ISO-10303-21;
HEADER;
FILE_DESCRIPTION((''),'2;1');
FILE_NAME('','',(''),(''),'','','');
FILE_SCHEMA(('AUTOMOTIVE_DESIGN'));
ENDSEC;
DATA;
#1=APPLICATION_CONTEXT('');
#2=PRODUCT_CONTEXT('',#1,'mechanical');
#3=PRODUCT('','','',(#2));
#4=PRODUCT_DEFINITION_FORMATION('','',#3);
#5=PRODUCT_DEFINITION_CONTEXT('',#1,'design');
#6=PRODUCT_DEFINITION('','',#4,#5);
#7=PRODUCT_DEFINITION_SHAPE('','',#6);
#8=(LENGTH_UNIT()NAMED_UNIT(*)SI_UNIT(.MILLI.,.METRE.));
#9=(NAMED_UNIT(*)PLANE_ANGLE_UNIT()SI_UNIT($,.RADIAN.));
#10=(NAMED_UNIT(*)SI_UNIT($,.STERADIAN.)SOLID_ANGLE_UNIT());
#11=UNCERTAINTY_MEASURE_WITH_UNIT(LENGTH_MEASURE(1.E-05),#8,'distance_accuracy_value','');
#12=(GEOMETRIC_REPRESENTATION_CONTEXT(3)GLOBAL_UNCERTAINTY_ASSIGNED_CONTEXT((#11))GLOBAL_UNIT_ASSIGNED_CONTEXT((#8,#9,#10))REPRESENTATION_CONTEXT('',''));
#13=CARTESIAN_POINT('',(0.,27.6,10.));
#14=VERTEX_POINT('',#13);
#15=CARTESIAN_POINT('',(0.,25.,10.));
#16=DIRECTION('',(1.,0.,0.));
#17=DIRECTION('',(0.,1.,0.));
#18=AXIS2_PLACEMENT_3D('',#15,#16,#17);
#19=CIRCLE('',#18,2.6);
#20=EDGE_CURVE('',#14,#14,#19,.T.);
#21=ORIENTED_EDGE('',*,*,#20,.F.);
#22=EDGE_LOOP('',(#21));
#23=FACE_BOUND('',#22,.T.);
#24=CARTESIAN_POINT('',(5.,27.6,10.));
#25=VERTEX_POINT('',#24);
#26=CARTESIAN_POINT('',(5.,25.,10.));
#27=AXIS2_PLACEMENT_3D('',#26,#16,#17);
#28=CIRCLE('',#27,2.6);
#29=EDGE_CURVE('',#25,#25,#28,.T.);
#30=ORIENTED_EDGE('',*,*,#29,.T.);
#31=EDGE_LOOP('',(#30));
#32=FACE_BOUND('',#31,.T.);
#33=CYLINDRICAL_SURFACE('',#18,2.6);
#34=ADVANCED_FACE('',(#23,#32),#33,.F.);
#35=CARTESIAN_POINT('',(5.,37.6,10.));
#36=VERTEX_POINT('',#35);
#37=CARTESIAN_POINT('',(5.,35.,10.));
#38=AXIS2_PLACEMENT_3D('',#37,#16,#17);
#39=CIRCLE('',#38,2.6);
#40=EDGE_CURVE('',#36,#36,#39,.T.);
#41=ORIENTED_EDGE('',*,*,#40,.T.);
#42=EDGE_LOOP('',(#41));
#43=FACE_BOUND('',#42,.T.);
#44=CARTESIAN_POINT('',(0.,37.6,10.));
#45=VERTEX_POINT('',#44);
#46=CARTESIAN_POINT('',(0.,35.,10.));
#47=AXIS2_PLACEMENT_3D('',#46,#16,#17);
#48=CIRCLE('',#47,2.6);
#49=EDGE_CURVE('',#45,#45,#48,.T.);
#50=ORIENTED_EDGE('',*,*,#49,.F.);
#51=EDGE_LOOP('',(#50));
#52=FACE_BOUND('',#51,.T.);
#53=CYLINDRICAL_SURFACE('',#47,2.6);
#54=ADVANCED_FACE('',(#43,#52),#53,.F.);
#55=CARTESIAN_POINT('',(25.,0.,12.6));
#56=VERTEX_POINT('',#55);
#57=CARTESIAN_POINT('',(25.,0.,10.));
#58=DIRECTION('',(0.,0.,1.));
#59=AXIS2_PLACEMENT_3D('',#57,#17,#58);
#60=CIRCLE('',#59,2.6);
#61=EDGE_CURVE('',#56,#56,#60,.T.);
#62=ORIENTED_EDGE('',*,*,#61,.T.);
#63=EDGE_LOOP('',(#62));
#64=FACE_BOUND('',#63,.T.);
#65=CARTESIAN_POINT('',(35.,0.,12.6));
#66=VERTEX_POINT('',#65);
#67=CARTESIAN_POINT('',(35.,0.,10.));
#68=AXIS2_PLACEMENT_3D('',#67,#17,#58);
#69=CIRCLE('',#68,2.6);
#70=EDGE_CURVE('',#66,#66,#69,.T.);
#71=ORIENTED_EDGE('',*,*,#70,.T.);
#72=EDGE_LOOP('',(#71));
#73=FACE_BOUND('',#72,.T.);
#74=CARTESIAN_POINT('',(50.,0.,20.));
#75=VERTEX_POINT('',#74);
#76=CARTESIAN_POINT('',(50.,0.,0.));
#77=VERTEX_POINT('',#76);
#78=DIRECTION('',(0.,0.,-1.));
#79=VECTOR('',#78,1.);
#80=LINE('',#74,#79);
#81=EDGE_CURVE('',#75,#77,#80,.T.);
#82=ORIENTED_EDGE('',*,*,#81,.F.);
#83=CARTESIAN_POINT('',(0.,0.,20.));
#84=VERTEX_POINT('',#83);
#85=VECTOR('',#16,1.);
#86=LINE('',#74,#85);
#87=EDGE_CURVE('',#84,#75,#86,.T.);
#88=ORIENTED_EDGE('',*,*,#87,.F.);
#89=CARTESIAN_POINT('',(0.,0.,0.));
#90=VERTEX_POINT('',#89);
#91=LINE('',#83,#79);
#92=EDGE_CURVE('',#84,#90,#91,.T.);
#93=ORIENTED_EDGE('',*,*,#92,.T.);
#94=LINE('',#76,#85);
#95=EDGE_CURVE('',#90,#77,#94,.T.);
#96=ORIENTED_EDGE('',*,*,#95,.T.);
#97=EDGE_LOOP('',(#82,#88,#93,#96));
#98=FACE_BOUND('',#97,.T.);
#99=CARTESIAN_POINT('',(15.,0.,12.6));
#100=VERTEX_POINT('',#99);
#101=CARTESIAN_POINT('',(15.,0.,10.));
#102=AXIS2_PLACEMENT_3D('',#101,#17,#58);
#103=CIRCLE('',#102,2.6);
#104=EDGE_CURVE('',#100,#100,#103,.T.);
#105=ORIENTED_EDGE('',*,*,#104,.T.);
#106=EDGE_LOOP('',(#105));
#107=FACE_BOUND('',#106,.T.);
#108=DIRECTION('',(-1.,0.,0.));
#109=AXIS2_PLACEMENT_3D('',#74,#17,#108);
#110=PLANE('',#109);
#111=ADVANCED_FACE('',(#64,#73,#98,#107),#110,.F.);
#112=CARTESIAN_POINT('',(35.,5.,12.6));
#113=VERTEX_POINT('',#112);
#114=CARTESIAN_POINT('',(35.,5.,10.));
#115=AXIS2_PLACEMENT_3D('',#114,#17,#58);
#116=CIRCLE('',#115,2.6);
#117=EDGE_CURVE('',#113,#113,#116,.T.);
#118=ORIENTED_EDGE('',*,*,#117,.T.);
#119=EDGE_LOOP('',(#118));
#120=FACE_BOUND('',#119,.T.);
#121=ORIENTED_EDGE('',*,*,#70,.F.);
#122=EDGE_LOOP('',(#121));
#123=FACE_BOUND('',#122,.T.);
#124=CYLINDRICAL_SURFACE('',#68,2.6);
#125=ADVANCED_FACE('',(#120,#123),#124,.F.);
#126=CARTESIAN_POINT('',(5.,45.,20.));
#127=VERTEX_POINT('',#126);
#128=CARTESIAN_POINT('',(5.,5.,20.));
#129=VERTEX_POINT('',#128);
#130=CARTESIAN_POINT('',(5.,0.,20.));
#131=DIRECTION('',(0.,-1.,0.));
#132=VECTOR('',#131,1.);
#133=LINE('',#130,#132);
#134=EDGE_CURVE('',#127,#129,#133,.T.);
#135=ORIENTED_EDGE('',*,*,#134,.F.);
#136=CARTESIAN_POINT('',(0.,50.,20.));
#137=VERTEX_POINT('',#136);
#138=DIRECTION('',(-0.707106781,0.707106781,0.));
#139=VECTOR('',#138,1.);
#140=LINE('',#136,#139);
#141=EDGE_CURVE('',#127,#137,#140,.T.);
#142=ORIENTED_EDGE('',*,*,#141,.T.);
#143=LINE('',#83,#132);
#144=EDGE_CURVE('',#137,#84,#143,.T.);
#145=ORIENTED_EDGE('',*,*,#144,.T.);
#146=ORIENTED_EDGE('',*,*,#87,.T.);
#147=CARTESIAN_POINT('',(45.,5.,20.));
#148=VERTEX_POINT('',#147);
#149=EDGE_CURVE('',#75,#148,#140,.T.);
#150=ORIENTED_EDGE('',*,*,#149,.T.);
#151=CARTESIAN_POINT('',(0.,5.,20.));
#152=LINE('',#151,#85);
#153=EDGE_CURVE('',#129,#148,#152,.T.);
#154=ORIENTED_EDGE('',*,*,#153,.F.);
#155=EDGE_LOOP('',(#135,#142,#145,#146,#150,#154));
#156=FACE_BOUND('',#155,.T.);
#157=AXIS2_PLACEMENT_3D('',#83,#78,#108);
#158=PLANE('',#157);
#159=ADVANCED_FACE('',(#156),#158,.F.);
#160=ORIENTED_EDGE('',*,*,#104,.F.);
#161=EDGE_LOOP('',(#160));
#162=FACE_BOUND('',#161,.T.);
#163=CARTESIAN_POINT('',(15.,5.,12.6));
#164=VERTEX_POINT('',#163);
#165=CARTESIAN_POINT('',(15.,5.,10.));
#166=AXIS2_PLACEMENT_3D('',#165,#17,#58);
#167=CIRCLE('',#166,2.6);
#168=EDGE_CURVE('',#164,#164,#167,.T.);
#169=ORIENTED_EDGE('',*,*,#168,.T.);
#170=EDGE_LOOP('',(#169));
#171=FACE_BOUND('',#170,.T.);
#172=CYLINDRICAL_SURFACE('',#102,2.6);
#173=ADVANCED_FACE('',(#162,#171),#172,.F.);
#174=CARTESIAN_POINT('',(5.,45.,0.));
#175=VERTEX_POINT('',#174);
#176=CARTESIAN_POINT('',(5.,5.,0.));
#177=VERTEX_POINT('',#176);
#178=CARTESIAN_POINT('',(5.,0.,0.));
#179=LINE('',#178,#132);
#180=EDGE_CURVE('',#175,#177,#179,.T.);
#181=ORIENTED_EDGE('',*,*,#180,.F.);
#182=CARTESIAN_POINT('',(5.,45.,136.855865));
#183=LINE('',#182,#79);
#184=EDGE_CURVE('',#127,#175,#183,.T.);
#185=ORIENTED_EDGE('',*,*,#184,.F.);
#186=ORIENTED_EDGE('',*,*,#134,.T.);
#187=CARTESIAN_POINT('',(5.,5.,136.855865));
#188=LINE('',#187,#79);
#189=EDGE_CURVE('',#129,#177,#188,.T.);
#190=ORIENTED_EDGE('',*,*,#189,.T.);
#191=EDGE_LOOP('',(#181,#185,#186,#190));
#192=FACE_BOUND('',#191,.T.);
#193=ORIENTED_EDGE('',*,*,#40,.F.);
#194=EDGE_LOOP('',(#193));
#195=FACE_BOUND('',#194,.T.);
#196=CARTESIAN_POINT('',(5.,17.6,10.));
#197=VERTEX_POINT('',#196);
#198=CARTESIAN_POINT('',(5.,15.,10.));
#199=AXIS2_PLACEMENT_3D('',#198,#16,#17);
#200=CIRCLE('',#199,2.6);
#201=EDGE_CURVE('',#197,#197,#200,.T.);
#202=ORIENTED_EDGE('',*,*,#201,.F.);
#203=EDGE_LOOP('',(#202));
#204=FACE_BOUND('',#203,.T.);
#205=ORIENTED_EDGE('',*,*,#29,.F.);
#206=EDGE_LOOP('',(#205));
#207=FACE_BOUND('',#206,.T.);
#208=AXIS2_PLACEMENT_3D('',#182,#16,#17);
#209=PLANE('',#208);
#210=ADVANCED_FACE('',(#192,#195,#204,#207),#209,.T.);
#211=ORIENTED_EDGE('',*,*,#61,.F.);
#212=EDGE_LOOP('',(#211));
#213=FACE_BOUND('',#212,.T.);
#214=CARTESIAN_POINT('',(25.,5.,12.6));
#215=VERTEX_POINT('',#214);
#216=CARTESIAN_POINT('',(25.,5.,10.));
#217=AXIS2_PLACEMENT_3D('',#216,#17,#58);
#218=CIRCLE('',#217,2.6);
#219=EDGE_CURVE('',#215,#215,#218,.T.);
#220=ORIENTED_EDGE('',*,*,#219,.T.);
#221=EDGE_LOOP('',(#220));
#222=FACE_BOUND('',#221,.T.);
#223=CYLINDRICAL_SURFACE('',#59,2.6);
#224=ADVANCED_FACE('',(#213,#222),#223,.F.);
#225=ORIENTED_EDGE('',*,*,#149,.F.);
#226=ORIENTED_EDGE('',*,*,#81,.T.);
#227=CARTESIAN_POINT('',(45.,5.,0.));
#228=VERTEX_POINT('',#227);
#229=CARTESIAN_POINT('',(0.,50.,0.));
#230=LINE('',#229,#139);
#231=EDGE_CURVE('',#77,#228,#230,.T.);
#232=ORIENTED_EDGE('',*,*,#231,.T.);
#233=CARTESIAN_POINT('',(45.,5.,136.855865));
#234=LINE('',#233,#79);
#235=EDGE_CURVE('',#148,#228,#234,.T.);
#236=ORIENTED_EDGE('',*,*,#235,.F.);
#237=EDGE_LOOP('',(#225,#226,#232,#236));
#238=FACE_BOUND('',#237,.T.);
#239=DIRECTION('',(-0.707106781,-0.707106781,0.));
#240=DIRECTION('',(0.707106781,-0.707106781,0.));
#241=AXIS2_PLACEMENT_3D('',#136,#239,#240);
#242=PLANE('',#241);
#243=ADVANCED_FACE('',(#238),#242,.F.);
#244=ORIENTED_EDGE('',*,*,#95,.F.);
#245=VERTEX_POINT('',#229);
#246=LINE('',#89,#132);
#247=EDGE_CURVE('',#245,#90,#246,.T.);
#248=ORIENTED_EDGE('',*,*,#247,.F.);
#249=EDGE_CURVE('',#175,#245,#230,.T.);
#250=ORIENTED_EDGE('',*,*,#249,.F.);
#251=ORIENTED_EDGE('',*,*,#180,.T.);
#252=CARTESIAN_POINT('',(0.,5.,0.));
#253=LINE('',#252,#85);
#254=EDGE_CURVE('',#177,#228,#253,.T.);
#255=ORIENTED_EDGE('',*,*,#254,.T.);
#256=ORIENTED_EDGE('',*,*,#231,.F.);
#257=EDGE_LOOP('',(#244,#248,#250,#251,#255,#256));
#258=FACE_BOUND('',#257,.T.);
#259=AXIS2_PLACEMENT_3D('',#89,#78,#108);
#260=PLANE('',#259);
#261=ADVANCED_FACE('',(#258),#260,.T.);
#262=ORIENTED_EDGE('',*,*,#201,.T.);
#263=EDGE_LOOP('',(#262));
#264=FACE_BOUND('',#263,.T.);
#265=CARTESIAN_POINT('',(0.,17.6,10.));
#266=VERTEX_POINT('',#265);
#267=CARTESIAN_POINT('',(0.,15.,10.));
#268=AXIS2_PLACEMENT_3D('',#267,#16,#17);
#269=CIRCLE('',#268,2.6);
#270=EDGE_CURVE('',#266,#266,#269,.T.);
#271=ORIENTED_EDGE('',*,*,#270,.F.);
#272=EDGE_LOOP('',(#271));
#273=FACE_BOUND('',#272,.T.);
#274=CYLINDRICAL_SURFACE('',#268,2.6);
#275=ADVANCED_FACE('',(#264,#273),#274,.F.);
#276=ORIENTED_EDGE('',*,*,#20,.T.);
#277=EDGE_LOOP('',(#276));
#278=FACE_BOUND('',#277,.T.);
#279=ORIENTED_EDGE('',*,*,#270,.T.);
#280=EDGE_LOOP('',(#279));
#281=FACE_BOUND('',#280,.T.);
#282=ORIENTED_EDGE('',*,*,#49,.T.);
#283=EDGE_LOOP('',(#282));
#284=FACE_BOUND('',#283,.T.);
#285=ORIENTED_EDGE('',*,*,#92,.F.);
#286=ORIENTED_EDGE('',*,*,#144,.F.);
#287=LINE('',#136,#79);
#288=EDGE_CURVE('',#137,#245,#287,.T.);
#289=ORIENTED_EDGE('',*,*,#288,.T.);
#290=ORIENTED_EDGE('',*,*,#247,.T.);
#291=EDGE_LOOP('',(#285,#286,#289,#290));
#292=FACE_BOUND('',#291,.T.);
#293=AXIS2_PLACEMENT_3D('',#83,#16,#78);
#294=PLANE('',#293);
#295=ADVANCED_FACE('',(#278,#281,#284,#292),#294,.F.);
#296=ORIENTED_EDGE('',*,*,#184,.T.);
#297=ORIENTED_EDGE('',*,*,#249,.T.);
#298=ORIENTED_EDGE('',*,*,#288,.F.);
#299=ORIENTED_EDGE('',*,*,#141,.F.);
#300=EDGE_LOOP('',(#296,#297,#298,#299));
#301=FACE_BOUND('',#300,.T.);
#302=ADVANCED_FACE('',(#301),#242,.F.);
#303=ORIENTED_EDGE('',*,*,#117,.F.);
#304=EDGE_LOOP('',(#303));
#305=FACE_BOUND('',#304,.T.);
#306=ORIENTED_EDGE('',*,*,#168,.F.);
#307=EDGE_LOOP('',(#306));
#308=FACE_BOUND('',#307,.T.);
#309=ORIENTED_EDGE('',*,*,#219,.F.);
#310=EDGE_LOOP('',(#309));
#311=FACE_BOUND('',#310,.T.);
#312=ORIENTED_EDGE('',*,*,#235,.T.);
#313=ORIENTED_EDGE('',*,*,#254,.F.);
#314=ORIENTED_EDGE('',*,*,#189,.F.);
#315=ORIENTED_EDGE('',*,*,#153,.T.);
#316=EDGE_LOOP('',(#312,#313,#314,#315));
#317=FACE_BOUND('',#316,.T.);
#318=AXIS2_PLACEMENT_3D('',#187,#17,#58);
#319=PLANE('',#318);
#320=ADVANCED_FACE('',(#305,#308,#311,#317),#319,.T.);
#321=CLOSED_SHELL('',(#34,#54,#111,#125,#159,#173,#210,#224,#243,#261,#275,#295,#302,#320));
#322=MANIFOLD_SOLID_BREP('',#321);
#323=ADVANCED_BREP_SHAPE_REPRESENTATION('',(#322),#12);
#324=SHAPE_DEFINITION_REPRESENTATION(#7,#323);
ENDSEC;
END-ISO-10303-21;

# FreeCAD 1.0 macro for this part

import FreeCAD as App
import Part
import Sketcher
from FreeCAD import Vector
Q = App.Units.Quantity


def add_polygon(sketch, points):
    """Adds a closed chain of lines whose ends are joined by coincident constraints."""
    first, n = sketch.GeometryCount, len(points)
    for a, b in zip(points, points[1:] + points[:1]):
        sketch.addGeometry(Part.LineSegment(App.Vector(*a, 0), App.Vector(*b, 0)), False)
    for i in range(n):
        sketch.addConstraint(Sketcher.Constraint("Coincident", first + i, 2, first + (i + 1) % n, 1))

doc = App.newDocument("Part")
params = doc.addObject("Spreadsheet::Sheet", "Params")
for row, (alias, value) in enumerate([
    ("sketch1_width", "50 mm"),
    ("pad1_length", "20 mm"),
    ("sketch3_diameter", "5.2 mm"),
    ("sketch4_diameter", "5.2 mm"),
], start=1):
    params.set(f"A{row}", alias)
    params.set(f"B{row}", "=" + value)
    params.setAlias(f"B{row}", alias)

body = doc.addObject("PartDesign::Body", "Body")

# Sketch on XY plane
sketch1 = body.newObject("Sketcher::SketchObject", "Sketch")
sketch1.AttachmentSupport = (doc.getObject("XY_Plane"), [""])
sketch1.MapMode = "FlatFace"
add_polygon(sketch1, [(0, 50), (0, 0), (50, 0)])  # lines 0-2
sketch1.addConstraint([
    Sketcher.Constraint("Vertical", 0),
    Sketcher.Constraint("Horizontal", 1),
    Sketcher.Constraint("Coincident", 0, 2, -1, 1),
    Sketcher.Constraint("Equal", 1, 0),
    Sketcher.Constraint("DistanceX", 1, 1, 1, 2, Q("50 mm")),
])
sketch1.setExpression("Constraints[7]", "Params.sketch1_width")
pad1 = body.newObject("PartDesign::Pad", "Pad")
pad1.Profile = sketch1
pad1.setExpression("Length", "Params.pad1_length")

# Sketch on XY plane
sketch2 = body.newObject("Sketcher::SketchObject", "Sketch001")
sketch2.AttachmentSupport = (doc.getObject("XY_Plane"), [""])
sketch2.MapMode = "FlatFace"
sketch2.AttachmentOffset = App.Placement(Vector(0, 0, 20), App.Rotation())
add_polygon(sketch2, [(5, 182), (5, 5), (182, 5), (376, 199), (199, 376)])  # lines 0-4
sketch2.addConstraint([
    Sketcher.Constraint("Vertical", 0),
    Sketcher.Constraint("Horizontal", 1),
    Sketcher.Constraint("Perpendicular", 2, 3),
    Sketcher.Constraint("Perpendicular", 3, 4),
    Sketcher.Constraint("Equal", 1, 0),
    Sketcher.Constraint("Equal", 2, 4),
    Sketcher.Constraint("DistanceX", -1, 1, 0, 2, Q("5 mm")),
    Sketcher.Constraint("DistanceY", -1, 1, 0, 2, Q("5 mm")),
    Sketcher.Constraint("DistanceX", 1, 1, 1, 2, Q("177.279221 mm")),
    Sketcher.Constraint("Distance", 2, Q("274.558441 mm")),
])
pocket1 = body.newObject("PartDesign::Pocket", "Pocket")
pocket1.Profile = sketch2
pocket1.Type = "ThroughAll"
pocket1.Midplane = True

# Sketch on YZ plane
sketch3 = body.newObject("Sketcher::SketchObject", "Sketch002")
sketch3.AttachmentSupport = (doc.getObject("YZ_Plane"), [""])
sketch3.MapMode = "FlatFace"
sketch3.AttachmentOffset = App.Placement(Vector(0, 0, 5), App.Rotation())
sketch3.addGeometry([
    Part.Circle(Vector(35, 10, 0), Vector(0, 0, 1), 2.6),
    Part.Circle(Vector(25, 10, 0), Vector(0, 0, 1), 2.6),
    Part.Circle(Vector(15, 10, 0), Vector(0, 0, 1), 2.6),
], False)
sketch3.addConstraint([
    Sketcher.Constraint("Equal", 0, 1),
    Sketcher.Constraint("Equal", 1, 2),
    Sketcher.Constraint("Horizontal", 0, 3, 1, 3),
    Sketcher.Constraint("Horizontal", 1, 3, 2, 3),
    Sketcher.Constraint("Diameter", 0, Q("5.2 mm")),
    Sketcher.Constraint("DistanceX", -1, 1, 0, 3, Q("35 mm")),
    Sketcher.Constraint("DistanceY", -1, 1, 0, 3, Q("10 mm")),
    Sketcher.Constraint("DistanceX", -1, 1, 1, 3, Q("25 mm")),
    Sketcher.Constraint("DistanceX", -1, 1, 2, 3, Q("15 mm")),
])
sketch3.setExpression("Constraints[4]", "Params.sketch3_diameter")
pocket2 = body.newObject("PartDesign::Pocket", "Pocket001")
pocket2.Profile = sketch3
pocket2.Type = "ThroughAll"

# Sketch on XZ plane
sketch4 = body.newObject("Sketcher::SketchObject", "Sketch003")
sketch4.AttachmentSupport = (doc.getObject("XZ_Plane"), [""])
sketch4.MapMode = "FlatFace"
sketch4.AttachmentOffset = App.Placement(Vector(0, 0, -5), App.Rotation())
sketch4.addGeometry([
    Part.Circle(Vector(35, 10, 0), Vector(0, 0, 1), 2.6),
    Part.Circle(Vector(25, 10, 0), Vector(0, 0, 1), 2.6),
    Part.Circle(Vector(15, 10, 0), Vector(0, 0, 1), 2.6),
], False)
sketch4.addConstraint([
    Sketcher.Constraint("Equal", 0, 1),
    Sketcher.Constraint("Equal", 1, 2),
    Sketcher.Constraint("Horizontal", 0, 3, 1, 3),
    Sketcher.Constraint("Horizontal", 1, 3, 2, 3),
    Sketcher.Constraint("Diameter", 0, Q("5.2 mm")),
    Sketcher.Constraint("DistanceX", -1, 1, 0, 3, Q("35 mm")),
    Sketcher.Constraint("DistanceY", -1, 1, 0, 3, Q("10 mm")),
    Sketcher.Constraint("DistanceX", -1, 1, 1, 3, Q("25 mm")),
    Sketcher.Constraint("DistanceX", -1, 1, 2, 3, Q("15 mm")),
])
sketch4.setExpression("Constraints[4]", "Params.sketch4_diameter")
pocket3 = body.newObject("PartDesign::Pocket", "Pocket002")
pocket3.Profile = sketch4
pocket3.Type = "ThroughAll"
pocket3.Reversed = True

doc.recompute()
